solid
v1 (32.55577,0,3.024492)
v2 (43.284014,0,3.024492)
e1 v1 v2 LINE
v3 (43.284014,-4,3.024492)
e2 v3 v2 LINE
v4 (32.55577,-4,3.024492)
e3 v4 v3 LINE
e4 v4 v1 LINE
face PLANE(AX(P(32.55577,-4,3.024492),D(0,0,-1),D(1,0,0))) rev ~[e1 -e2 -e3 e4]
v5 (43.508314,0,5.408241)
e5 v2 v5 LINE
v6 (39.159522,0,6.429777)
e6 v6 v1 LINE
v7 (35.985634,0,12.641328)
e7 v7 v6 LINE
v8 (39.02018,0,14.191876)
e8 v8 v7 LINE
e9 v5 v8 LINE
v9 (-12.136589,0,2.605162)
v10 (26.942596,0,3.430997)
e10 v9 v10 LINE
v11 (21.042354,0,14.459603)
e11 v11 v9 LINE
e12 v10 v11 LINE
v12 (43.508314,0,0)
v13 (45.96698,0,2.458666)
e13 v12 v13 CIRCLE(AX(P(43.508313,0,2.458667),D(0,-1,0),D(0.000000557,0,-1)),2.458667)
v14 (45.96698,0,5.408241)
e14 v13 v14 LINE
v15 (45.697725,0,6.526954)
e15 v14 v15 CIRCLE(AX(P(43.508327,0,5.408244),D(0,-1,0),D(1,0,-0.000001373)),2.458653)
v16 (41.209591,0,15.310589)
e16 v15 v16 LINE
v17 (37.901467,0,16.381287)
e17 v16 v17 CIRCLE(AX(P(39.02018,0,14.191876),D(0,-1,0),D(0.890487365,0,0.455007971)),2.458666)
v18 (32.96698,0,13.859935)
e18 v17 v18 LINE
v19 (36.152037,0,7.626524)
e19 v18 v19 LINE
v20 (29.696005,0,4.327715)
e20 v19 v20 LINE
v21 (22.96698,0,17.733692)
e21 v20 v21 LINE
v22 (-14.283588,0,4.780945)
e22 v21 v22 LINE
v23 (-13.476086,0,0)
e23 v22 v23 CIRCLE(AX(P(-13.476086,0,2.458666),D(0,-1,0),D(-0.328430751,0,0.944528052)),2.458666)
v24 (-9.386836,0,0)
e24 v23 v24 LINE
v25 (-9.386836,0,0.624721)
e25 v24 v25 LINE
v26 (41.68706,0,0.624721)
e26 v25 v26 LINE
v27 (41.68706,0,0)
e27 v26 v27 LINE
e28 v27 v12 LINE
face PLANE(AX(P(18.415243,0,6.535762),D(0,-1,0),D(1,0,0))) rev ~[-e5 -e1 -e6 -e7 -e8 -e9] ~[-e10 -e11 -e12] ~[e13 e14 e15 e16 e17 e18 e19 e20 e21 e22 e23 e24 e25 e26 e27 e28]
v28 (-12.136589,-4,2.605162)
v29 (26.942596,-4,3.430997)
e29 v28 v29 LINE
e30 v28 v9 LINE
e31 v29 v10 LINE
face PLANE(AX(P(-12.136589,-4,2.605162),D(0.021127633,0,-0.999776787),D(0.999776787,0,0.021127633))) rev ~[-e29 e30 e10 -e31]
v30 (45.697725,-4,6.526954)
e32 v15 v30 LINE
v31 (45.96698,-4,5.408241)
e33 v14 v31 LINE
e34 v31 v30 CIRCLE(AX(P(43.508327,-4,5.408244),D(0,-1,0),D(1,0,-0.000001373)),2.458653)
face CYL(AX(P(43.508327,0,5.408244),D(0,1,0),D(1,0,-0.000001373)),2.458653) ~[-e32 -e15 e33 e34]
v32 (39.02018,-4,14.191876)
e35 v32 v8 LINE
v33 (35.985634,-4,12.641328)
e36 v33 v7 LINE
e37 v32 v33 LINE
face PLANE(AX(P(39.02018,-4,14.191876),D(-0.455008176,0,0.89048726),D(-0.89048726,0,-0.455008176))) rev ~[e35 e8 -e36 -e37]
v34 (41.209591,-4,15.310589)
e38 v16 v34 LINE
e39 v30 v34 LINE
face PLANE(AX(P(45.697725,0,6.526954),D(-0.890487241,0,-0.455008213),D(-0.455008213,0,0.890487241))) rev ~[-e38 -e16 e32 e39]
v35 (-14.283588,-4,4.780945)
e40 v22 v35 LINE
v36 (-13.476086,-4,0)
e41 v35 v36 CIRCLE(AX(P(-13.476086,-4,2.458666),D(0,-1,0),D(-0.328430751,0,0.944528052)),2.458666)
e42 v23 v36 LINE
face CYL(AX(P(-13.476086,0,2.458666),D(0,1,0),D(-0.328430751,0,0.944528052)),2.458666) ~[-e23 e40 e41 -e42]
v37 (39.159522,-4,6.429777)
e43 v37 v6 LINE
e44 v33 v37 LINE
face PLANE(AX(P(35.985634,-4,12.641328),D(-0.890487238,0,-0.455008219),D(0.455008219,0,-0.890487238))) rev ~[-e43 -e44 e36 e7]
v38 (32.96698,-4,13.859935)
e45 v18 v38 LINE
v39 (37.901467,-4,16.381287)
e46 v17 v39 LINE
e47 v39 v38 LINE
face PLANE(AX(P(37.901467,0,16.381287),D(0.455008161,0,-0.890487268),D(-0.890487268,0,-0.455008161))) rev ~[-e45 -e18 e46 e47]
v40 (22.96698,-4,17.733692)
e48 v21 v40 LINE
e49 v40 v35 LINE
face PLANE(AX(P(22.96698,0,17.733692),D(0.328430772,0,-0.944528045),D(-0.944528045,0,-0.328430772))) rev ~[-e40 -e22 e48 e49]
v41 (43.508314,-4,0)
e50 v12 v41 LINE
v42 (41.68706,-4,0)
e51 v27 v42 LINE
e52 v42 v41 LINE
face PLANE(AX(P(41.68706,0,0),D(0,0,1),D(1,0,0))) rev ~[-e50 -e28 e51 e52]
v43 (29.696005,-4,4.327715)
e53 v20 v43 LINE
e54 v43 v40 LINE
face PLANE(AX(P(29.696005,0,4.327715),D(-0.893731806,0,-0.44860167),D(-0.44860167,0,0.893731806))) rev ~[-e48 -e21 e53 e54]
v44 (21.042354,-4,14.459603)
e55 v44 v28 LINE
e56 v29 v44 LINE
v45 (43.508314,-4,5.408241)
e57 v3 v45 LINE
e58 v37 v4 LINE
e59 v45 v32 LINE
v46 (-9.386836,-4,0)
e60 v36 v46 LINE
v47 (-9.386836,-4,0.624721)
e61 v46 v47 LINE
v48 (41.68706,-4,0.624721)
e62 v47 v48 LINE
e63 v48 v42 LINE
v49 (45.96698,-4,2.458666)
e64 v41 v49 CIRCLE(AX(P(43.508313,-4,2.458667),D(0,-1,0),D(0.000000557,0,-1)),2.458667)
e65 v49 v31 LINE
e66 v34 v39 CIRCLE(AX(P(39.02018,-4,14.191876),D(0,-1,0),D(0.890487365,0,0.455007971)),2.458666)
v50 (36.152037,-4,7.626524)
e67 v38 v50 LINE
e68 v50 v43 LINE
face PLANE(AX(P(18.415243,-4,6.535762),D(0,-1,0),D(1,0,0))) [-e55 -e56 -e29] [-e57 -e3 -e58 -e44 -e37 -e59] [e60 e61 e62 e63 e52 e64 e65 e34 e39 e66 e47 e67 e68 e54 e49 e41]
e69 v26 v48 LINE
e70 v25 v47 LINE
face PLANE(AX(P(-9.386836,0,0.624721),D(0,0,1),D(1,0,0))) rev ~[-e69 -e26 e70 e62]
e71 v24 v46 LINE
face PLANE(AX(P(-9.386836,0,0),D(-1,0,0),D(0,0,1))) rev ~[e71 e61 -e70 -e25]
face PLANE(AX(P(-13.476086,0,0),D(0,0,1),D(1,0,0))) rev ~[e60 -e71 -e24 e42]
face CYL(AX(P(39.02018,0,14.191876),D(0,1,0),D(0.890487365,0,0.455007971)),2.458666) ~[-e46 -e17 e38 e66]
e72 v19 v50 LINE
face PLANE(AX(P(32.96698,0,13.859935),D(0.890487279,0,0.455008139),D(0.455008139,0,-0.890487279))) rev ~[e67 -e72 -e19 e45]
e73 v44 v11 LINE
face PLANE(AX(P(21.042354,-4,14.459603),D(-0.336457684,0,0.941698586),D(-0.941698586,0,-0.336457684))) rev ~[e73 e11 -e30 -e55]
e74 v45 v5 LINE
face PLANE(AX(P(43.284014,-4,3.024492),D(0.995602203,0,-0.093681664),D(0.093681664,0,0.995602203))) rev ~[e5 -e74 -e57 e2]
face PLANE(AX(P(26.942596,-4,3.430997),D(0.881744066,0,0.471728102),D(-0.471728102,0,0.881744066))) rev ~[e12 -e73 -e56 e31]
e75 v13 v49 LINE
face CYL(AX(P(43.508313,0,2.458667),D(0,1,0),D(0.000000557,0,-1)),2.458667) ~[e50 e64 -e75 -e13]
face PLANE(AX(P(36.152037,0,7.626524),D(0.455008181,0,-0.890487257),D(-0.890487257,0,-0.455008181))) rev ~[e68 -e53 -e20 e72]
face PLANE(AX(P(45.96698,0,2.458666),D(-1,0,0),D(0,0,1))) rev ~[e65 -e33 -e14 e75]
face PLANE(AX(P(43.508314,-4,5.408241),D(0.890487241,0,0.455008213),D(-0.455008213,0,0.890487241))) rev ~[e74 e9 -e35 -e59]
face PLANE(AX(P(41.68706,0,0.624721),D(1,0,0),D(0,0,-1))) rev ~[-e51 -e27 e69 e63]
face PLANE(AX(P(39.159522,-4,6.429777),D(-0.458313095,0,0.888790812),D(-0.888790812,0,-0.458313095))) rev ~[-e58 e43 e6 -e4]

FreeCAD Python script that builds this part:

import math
import FreeCAD as App
import Part
import Sketcher

V = App.Vector
Q = App.Units.Quantity


def add_polygon(sketch, points):
    """Adds a closed chain of lines whose ends are joined by coincident constraints."""
    first, n = sketch.GeometryCount, len(points)
    for a, b in zip(points, points[1:] + points[:1]):
        sketch.addGeometry(Part.LineSegment(App.Vector(*a, 0), App.Vector(*b, 0)), False)
    for i in range(n):
        sketch.addConstraint(Sketcher.Constraint("Coincident", first + i, 2, first + (i + 1) % n, 1))

doc = App.newDocument("Part")
body = doc.addObject("PartDesign::Body", "Body")

# Sketch on XZ plane
sketch1 = body.newObject("Sketcher::SketchObject", "Sketch")
sketch1.AttachmentSupport = (doc.getObject("XZ_Plane"), [""])
sketch1.MapMode = "FlatFace"
sketch1.addGeometry([
    Part.ArcOfCircle(Part.Circle(V(-13.476086, 2.458666, 0), V(0, 0, 1), 2.458666), math.radians(109.173556), math.radians(270.000011)),  # 0
    Part.LineSegment(V(-13.476086, 0, 0), V(-9.386836, 0, 0)),  # 1
    Part.LineSegment(V(-9.386836, 0, 0), V(-9.386836, 0.624721, 0)),  # 2
    Part.LineSegment(V(-9.386836, 0.624721, 0), V(41.68706, 0.624721, 0)),  # 3
    Part.LineSegment(V(41.68706, 0.624721, 0), V(41.68706, 0, 0)),  # 4
    Part.LineSegment(V(41.68706, 0, 0), V(43.508314, 0, 0)),  # 5
    Part.ArcOfCircle(Part.Circle(V(43.508313, 2.458667, 0), V(0, 0, 1), 2.458667), math.radians(-89.999968), math.radians(-0.000032)),  # 6
    Part.LineSegment(V(45.96698, 2.458666, 0), V(45.96698, 5.408241, 0)),  # 7
    Part.ArcOfCircle(Part.Circle(V(43.508327, 5.408244, 0), V(0, 0, 1), 2.458653), math.radians(-0.000079), math.radians(27.065518)),  # 8
    Part.LineSegment(V(45.697725, 6.526954, 0), V(41.209591, 15.310589, 0)),  # 9
    Part.ArcOfCircle(Part.Circle(V(39.02018, 14.191876, 0), V(0, 0, 1), 2.458666), math.radians(27.065447), math.radians(117.065463)),  # 10
    Part.LineSegment(V(37.901467, 16.381287, 0), V(32.96698, 13.859935, 0)),  # 11
    Part.LineSegment(V(32.96698, 13.859935, 0), V(36.152037, 7.626524, 0)),  # 12
    Part.LineSegment(V(36.152037, 7.626524, 0), V(29.696005, 4.327715, 0)),  # 13
    Part.LineSegment(V(29.696005, 4.327715, 0), V(22.96698, 17.733692, 0)),  # 14
    Part.LineSegment(V(22.96698, 17.733692, 0), V(-14.283588, 4.780945, 0)),  # 15
], False)
sketch1.addConstraint([
    Sketcher.Constraint("Coincident", 0, 2, 1, 1),
    Sketcher.Constraint("Coincident", 1, 2, 2, 1),
    Sketcher.Constraint("Coincident", 2, 2, 3, 1),
    Sketcher.Constraint("Coincident", 3, 2, 4, 1),
    Sketcher.Constraint("Coincident", 4, 2, 5, 1),
    Sketcher.Constraint("Coincident", 5, 2, 6, 1),
    Sketcher.Constraint("Coincident", 6, 2, 7, 1),
    Sketcher.Constraint("Coincident", 7, 2, 8, 1),
    Sketcher.Constraint("Coincident", 8, 2, 9, 1),
    Sketcher.Constraint("Coincident", 9, 2, 10, 1),
    Sketcher.Constraint("Coincident", 10, 2, 11, 1),
    Sketcher.Constraint("Coincident", 11, 2, 12, 1),
    Sketcher.Constraint("Coincident", 12, 2, 13, 1),
    Sketcher.Constraint("Coincident", 13, 2, 14, 1),
    Sketcher.Constraint("Coincident", 14, 2, 15, 1),
    Sketcher.Constraint("Coincident", 15, 2, 0, 1),
    Sketcher.Constraint("Horizontal", 1),
    Sketcher.Constraint("Vertical", 2),
    Sketcher.Constraint("Horizontal", 3),
    Sketcher.Constraint("Vertical", 4),
    Sketcher.Constraint("Horizontal", 5),
    Sketcher.Constraint("Vertical", 7),
    Sketcher.Constraint("PointOnObject", 0, 2, -1),
    Sketcher.Constraint("PointOnObject", 4, 2, -1),
    Sketcher.Constraint("Distance", 12, Q("7 mm")),
    Sketcher.Constraint("Distance", 14, Q("15 mm")),
    Sketcher.Constraint("DistanceX", 14, 2, 11, 2, Q("10 mm")),
    Sketcher.Constraint("Distance", 13, Q("7.249999 mm")),
    Sketcher.Constraint("Radius", 0, Q("2.458666 mm")),
    Sketcher.Constraint("Radius", 6, Q("2.458667 mm")),
    Sketcher.Constraint("Radius", 8, Q("2.458653 mm")),
    Sketcher.Constraint("Radius", 10, Q("2.458666 mm")),
    Sketcher.Constraint("DistanceX", 1, 1, 1, 2, Q("4.08925 mm")),
    Sketcher.Constraint("DistanceY", 2, 1, 2, 2, Q("0.624721 mm")),
    Sketcher.Constraint("DistanceX", 0, 3, 6, 3, Q("56.984399 mm")),
    Sketcher.Constraint("DistanceX", 0, 2, 6, 3, Q("56.984399 mm")),
    Sketcher.Constraint("DistanceX", 8, 3, 8, 2, Q("2.189398 mm")),
    Sketcher.Constraint("DistanceX", 11, 2, 10, 3, Q("6.0532 mm")),
    Sketcher.Constraint("DistanceX", 15, 2, 0, 3, Q("0.807502 mm")),
    Sketcher.Constraint("DistanceX", 3, 1, 3, 2, Q("51.073896 mm")),
    Sketcher.Constraint("DistanceX", 5, 1, 5, 2, Q("1.821254 mm")),
    Sketcher.Constraint("DistanceY", 7, 1, 7, 2, Q("2.949575 mm")),
    Sketcher.Constraint("DistanceX", -1, 1, 10, 3, Q("39.02018 mm")),
    Sketcher.Constraint("DistanceX", -1, 1, 3, 2, Q("41.68706 mm")),
    Sketcher.Constraint("DistanceY", -1, 1, 7, 2, Q("5.408241 mm")),
    Sketcher.Constraint("DistanceX", -1, 1, 9, 2, Q("41.209591 mm")),
    Sketcher.Constraint("DistanceY", -1, 1, 9, 2, Q("15.310589 mm")),
    Sketcher.Constraint("DistanceY", 0, 3, 8, 3, Q("2.949578 mm")),
    Sketcher.Constraint("DistanceY", 10, 3, 10, 2, Q("2.189411 mm")),
    Sketcher.Constraint("DistanceY", 11, 2, 10, 2, Q("2.521352 mm")),
    Sketcher.Constraint("DistanceY", 12, 2, 11, 2, Q("6.233411 mm")),
    Sketcher.Constraint("DistanceY", 13, 2, 12, 2, Q("3.298809 mm")),
])
pad1 = body.newObject("PartDesign::Pad", "Pad")
pad1.Profile = sketch1
pad1.Length = 4

# Sketch on XZ plane
sketch2 = body.newObject("Sketcher::SketchObject", "Sketch001")
sketch2.AttachmentSupport = (doc.getObject("XZ_Plane"), [""])
sketch2.MapMode = "FlatFace"
sketch2.AttachmentOffset = App.Placement(V(0, 0, 4), App.Rotation())
add_polygon(sketch2, [(21.042354, 14.459603), (-12.136589, 2.605162), (26.942596, 3.430997)])  # lines 0-2
add_polygon(sketch2, [(39.159522, 6.429777), (32.55577, 3.024492), (43.284014, 3.024492), (43.508314, 5.408241), (39.02018, 14.191876), (35.985634, 12.641328)])  # lines 3-8
sketch2.addConstraint([
    Sketcher.Constraint("Horizontal", 4),
    Sketcher.Constraint("Perpendicular", 6, 7),
    Sketcher.Constraint("Perpendicular", 7, 8),
    Sketcher.Constraint("DistanceX", 4, 2, 5, 2, Q("0.2243 mm")),
    Sketcher.Constraint("DistanceY", 8, 2, 6, 2, Q("7.762099 mm")),
    Sketcher.Constraint("Distance", 0, Q("35.233081 mm")),
    Sketcher.Constraint("Distance", 1, Q("39.08791 mm")),
    Sketcher.Constraint("Distance", 3, Q("7.430041 mm")),
    Sketcher.Constraint("Distance", 5, Q("2.394279 mm")),
    Sketcher.Constraint("DistanceX", 4, 1, 4, 2, Q("10.728244 mm")),
    Sketcher.Constraint("DistanceX", 0, 2, -1, 1, Q("12.136589 mm")),
    Sketcher.Constraint("DistanceY", -1, 1, 0, 2, Q("2.605162 mm")),
    Sketcher.Constraint("DistanceX", -1, 1, 3, 2, Q("32.55577 mm")),
    Sketcher.Constraint("DistanceY", -1, 1, 3, 2, Q("3.024492 mm")),
    Sketcher.Constraint("DistanceX", -1, 1, 6, 2, Q("39.02018 mm")),
    Sketcher.Constraint("DistanceY", 0, 2, 2, 2, Q("11.854441 mm")),
    Sketcher.Constraint("DistanceY", 1, 2, 6, 2, Q("10.760879 mm")),
    Sketcher.Constraint("DistanceY", 7, 2, 6, 2, Q("1.550548 mm")),
])
pocket1 = body.newObject("PartDesign::Pocket", "Pocket")
pocket1.Profile = sketch2
pocket1.Type = "ThroughAll"

doc.recompute()
